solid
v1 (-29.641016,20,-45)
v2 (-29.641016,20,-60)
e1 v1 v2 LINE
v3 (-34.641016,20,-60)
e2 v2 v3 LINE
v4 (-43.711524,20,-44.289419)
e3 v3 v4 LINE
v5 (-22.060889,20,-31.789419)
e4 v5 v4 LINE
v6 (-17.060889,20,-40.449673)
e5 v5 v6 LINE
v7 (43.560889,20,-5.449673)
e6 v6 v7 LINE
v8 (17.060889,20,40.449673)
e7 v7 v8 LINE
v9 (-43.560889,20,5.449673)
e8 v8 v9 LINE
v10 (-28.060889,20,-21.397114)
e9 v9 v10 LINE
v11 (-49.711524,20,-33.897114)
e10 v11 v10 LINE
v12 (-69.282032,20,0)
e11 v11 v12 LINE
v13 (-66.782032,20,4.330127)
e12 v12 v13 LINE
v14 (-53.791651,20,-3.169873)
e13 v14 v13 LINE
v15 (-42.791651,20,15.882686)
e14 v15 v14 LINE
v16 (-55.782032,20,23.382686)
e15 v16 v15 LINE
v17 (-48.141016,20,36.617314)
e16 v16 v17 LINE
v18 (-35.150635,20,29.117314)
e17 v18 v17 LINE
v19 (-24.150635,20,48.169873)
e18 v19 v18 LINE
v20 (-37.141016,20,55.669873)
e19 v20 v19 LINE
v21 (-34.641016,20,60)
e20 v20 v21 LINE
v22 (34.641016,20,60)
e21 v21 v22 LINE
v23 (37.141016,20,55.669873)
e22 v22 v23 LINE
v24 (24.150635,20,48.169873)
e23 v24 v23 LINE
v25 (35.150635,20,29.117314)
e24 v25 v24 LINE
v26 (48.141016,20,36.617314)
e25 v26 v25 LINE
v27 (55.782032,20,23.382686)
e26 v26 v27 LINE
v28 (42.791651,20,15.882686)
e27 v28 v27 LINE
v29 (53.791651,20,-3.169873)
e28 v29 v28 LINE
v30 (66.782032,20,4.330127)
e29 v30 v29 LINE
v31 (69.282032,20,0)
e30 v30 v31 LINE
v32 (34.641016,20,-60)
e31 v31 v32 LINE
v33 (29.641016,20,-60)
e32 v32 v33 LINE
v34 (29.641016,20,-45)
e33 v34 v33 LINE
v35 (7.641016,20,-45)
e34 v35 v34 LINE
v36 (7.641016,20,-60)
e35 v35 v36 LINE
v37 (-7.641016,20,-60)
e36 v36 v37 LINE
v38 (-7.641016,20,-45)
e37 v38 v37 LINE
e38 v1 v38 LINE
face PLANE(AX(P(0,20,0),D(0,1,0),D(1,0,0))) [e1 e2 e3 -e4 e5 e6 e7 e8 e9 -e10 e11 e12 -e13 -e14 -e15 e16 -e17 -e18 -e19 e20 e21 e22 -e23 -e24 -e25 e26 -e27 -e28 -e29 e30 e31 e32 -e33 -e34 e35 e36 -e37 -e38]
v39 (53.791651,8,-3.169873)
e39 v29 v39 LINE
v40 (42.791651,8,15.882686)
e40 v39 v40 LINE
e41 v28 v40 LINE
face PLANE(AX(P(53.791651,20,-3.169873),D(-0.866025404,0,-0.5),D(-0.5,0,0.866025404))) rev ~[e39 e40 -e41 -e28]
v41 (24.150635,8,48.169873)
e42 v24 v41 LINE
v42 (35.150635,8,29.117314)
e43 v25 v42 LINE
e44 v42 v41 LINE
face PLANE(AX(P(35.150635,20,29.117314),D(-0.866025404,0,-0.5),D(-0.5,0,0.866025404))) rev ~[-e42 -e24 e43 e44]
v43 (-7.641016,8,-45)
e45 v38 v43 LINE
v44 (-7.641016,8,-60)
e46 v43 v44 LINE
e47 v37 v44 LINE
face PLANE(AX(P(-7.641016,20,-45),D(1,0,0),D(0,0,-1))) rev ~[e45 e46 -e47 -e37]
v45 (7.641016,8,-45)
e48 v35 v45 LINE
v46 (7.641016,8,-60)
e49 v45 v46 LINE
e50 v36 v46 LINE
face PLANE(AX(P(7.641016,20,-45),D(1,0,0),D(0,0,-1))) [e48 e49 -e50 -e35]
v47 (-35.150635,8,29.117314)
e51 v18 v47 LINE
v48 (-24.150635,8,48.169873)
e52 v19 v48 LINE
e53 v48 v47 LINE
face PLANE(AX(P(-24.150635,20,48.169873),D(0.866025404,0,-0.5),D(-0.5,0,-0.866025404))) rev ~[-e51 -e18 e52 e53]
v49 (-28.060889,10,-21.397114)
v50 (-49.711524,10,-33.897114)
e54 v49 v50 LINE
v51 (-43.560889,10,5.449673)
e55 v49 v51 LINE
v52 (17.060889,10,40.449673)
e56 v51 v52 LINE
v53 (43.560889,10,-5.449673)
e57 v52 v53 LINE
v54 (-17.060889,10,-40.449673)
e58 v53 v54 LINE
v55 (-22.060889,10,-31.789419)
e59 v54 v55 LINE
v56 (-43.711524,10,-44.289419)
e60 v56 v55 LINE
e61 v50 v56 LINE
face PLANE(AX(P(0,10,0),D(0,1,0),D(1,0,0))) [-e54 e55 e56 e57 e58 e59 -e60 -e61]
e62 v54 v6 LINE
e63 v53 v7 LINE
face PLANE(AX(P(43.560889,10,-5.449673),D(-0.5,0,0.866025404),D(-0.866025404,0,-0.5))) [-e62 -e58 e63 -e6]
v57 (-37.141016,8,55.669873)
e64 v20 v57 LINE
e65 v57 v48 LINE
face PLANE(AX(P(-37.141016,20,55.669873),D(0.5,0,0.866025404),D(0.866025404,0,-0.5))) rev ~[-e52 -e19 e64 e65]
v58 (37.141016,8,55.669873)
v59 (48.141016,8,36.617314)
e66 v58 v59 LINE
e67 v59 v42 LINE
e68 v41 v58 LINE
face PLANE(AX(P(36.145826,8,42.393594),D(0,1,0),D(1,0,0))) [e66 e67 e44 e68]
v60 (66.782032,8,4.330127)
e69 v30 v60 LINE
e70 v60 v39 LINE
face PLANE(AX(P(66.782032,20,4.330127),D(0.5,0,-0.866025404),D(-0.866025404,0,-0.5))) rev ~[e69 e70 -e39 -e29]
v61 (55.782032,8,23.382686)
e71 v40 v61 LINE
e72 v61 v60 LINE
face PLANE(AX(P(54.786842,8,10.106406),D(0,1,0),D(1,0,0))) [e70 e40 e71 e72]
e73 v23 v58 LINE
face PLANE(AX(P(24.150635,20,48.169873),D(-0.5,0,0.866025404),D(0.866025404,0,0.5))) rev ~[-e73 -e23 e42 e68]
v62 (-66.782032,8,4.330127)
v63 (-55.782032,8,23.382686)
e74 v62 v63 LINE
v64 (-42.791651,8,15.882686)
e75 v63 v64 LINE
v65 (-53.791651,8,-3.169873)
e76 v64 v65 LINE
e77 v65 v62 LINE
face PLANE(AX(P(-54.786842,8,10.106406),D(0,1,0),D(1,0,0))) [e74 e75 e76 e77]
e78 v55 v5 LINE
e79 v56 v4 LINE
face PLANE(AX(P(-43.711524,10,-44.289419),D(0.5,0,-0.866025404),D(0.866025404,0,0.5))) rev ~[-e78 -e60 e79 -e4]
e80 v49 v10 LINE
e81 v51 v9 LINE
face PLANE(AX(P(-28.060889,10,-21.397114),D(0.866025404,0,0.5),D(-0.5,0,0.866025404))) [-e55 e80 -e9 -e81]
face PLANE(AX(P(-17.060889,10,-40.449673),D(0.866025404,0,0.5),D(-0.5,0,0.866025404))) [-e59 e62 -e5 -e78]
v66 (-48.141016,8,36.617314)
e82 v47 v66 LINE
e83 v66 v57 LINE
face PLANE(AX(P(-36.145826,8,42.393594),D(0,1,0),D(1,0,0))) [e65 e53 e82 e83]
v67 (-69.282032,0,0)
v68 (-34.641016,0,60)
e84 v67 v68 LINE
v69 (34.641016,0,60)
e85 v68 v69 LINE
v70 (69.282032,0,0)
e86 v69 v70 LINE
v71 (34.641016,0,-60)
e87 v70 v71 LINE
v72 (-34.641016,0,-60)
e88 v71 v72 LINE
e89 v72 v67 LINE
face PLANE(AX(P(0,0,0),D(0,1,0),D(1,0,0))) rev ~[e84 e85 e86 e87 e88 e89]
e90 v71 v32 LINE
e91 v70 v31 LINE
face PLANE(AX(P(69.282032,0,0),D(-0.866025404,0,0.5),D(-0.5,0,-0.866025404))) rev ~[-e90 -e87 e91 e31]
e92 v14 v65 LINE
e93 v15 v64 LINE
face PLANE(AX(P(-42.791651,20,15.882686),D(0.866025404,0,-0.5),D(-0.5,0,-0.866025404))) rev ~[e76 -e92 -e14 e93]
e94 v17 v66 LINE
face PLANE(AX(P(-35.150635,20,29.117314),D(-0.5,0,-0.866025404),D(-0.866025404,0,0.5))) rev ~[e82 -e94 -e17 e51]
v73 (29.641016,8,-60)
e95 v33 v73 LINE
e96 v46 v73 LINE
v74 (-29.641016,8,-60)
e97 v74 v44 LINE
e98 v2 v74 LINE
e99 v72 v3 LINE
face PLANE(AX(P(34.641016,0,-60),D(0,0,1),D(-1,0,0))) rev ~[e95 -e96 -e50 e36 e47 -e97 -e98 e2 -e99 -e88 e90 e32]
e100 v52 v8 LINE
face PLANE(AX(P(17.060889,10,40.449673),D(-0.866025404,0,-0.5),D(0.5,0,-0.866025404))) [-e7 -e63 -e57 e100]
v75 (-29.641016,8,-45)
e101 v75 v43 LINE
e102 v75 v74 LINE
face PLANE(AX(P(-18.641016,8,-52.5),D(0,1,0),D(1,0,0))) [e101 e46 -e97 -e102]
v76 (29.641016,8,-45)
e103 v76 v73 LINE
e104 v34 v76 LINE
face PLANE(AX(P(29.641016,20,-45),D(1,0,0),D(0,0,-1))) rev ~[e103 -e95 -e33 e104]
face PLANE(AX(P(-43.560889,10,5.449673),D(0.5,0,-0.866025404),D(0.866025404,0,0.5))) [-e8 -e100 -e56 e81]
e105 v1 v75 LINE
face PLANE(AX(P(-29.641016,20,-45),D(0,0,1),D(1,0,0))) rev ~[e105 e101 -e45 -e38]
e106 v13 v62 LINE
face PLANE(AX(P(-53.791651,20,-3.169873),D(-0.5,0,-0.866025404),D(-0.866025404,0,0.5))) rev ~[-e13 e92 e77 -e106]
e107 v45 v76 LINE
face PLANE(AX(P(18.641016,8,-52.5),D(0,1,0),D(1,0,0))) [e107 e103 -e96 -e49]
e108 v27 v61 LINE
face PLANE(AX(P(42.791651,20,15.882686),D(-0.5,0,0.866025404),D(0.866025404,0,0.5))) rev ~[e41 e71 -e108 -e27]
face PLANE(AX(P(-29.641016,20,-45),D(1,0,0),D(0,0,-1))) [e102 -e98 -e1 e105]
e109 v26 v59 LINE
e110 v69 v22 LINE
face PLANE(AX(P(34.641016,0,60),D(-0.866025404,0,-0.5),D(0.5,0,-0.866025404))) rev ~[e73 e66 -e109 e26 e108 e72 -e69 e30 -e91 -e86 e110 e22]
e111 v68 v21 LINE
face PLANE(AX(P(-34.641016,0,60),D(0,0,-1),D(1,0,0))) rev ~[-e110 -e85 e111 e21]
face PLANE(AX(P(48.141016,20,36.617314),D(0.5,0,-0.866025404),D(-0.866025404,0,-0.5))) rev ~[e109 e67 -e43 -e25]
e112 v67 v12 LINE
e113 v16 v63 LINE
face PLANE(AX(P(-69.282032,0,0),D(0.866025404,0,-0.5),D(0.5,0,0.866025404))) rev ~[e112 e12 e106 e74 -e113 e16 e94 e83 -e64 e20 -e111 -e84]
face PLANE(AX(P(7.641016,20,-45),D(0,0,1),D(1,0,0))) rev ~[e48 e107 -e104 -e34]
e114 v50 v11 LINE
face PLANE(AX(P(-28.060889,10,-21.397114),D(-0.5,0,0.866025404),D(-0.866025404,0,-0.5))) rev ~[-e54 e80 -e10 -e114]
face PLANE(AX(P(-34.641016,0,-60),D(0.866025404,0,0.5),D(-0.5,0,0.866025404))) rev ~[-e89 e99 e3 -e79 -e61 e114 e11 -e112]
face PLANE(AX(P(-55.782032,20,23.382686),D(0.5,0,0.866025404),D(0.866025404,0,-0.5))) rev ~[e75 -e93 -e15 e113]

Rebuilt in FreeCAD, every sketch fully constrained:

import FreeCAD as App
import Part
import Sketcher

V = App.Vector
Q = App.Units.Quantity


def add_polygon(sketch, points):
    """Adds a closed chain of lines whose ends are joined by coincident constraints."""
    first, n = sketch.GeometryCount, len(points)
    for a, b in zip(points, points[1:] + points[:1]):
        sketch.addGeometry(Part.LineSegment(App.Vector(*a, 0), App.Vector(*b, 0)), False)
    for i in range(n):
        sketch.addConstraint(Sketcher.Constraint("Coincident", first + i, 2, first + (i + 1) % n, 1))

doc = App.newDocument("Part")
body = doc.addObject("PartDesign::Body", "Body")

# Sketch on XZ plane
sketch1 = doc.addObject("Sketcher::SketchObject", "Sketch")
body.addObject(sketch1)
sketch1.AttachmentSupport = (doc.XZ_Plane, [""])
sketch1.MapMode = "FlatFace"
add_polygon(sketch1, [(69, 0), (35, -60), (-35, -60), (-69, 0), (-35, 60), (35, 60)])  # lines 0-5
sketch1.addConstraint([
    Sketcher.Constraint("Horizontal", 1),
    Sketcher.Constraint("Horizontal", 4),
    Sketcher.Constraint("Symmetric", 0, 2, 3, 2, -1, 1),
    Sketcher.Constraint("Symmetric", 2, 2, 5, 2, -1, 1),
    Sketcher.Constraint("PointOnObject", 2, 2, -1),
    Sketcher.Constraint("Parallel", 2, 5),
    Sketcher.Constraint("Vertical", 1, 2, 3, 2),
    Sketcher.Constraint("Angle", 0, Q("-120 deg")),
    Sketcher.Constraint("DistanceY", 0, 2, -1, 1, Q("60 mm")),
    Sketcher.Constraint("DistanceX", 1, 2, 1, 1, Q("69.282032 mm")),
])
pad1 = doc.addObject("PartDesign::Pad", "Pad")
body.addObject(pad1)
pad1.Profile = sketch1
pad1.Length = 20
pad1.Reversed = True

# Sketch on XZ plane
sketch2 = doc.addObject("Sketcher::SketchObject", "Sketch001")
body.addObject(sketch2)
sketch2.AttachmentSupport = (doc.XZ_Plane, [""])
sketch2.MapMode = "FlatFace"
sketch2.AttachmentOffset = App.Placement(V(0, 0, -20), App.Rotation())
add_polygon(sketch2, [(-30, -60), (-30, -45), (-8, -45), (-8, -60)])  # lines 0-3
add_polygon(sketch2, [(8, -60), (8, -45), (30, -45), (30, -60)])  # lines 4-7
add_polygon(sketch2, [(67, 4), (54, -3), (43, 16), (56, 23)])  # lines 8-11
add_polygon(sketch2, [(48, 37), (35, 29), (24, 48), (37, 56)])  # lines 12-15
add_polygon(sketch2, [(-37, 56), (-24, 48), (-35, 29), (-48, 37)])  # lines 16-19
add_polygon(sketch2, [(-56, 23), (-43, 16), (-54, -3), (-67, 4)])  # lines 20-23
sketch2.addConstraint([
    Sketcher.Constraint("Vertical", 0),
    Sketcher.Constraint("Horizontal", 1),
    Sketcher.Constraint("Vertical", 2),
    Sketcher.Constraint("Horizontal", 3),
    Sketcher.Constraint("Vertical", 4),
    Sketcher.Constraint("Horizontal", 5),
    Sketcher.Constraint("Vertical", 6),
    Sketcher.Constraint("Horizontal", 7),
    Sketcher.Constraint("Symmetric", 1, 2, 4, 2, -2),
    Sketcher.Constraint("Symmetric", 3, 2, 6, 2, -2),
    Sketcher.Constraint("Symmetric", 13, 2, 16, 2, -2),
    Sketcher.Constraint("Symmetric", 12, 2, 17, 2, -2),
    Sketcher.Constraint("Symmetric", 15, 2, 18, 2, -2),
    Sketcher.Constraint("Symmetric", 14, 2, 19, 2, -2),
    Sketcher.Constraint("Symmetric", 9, 2, 20, 2, -2),
    Sketcher.Constraint("Symmetric", 8, 2, 21, 2, -2),
    Sketcher.Constraint("Symmetric", 11, 2, 22, 2, -2),
    Sketcher.Constraint("Symmetric", 10, 2, 23, 2, -2),
    Sketcher.Constraint("Perpendicular", 8, 9),
    Sketcher.Constraint("Perpendicular", 9, 10),
    Sketcher.Constraint("Perpendicular", 10, 11),
    Sketcher.Constraint("Perpendicular", 11, 12),
    Sketcher.Constraint("Perpendicular", 12, 13),
    Sketcher.Constraint("Perpendicular", 13, 14),
    Sketcher.Constraint("Perpendicular", 14, 15),
    Sketcher.Constraint("Equal", 10, 12),
    Sketcher.Constraint("Equal", 11, 13),
    Sketcher.Constraint("DistanceX", 1, 1, 1, 2, Q("22 mm")),
    Sketcher.Constraint("DistanceY", 0, 1, 0, 2, Q("15 mm")),
    Sketcher.Constraint("Angle", 8, Q("-150 deg")),
    Sketcher.Constraint("Distance", 8, Q("15 mm")),
    Sketcher.Constraint("Distance", 9, Q("22 mm")),
    Sketcher.Constraint("DistanceY", 0, 2, -1, 1, Q("45 mm")),
    Sketcher.Constraint("DistanceX", 18, 2, 0, 2, Q("18.5 mm")),
    Sketcher.Constraint("DistanceX", -1, 1, 8, 2, Q("53.791651 mm")),
    Sketcher.Constraint("DistanceY", 9, 2, 12, 2, Q("13.234628 mm")),
    Sketcher.Constraint("DistanceX", 16, 2, 13, 2, Q("48.30127 mm")),
    Sketcher.Constraint("DistanceY", 8, 2, -1, 1, Q("3.169873 mm")),
])
pocket1 = doc.addObject("PartDesign::Pocket", "Pocket")
body.addObject(pocket1)
pocket1.Profile = sketch2
pocket1.Length = 12
pocket1.Reversed = True

# Sketch on XZ plane
sketch3 = doc.addObject("Sketcher::SketchObject", "Sketch002")
body.addObject(sketch3)
sketch3.AttachmentSupport = (doc.XZ_Plane, [""])
sketch3.MapMode = "FlatFace"
sketch3.AttachmentOffset = App.Placement(V(0, 0, -20), App.Rotation())
add_polygon(sketch3, [(-44, 5), (17, 40), (44, -5), (-17, -40), (-22, -32), (-44, -44), (-50, -34), (-28, -21)])  # lines 0-7
sketch3.addConstraint([
    Sketcher.Constraint("Symmetric", 0, 2, 2, 2, -1, 1),
    Sketcher.Constraint("Symmetric", 1, 2, 7, 2, -1, 1),
    Sketcher.Constraint("Perpendicular", 0, 1),
    Sketcher.Constraint("Perpendicular", 2, 3),
    Sketcher.Constraint("Perpendicular", 3, 4),
    Sketcher.Constraint("Perpendicular", 4, 5),
    Sketcher.Constraint("Perpendicular", 5, 6),
    Sketcher.Constraint("Perpendicular", 6, 7),
    Sketcher.Constraint("Angle", 0, Q("30 deg")),
    Sketcher.Constraint("Distance", 0, Q("70 mm")),
    Sketcher.Constraint("Distance", 1, Q("53 mm")),
    Sketcher.Constraint("Distance", 3, Q("10 mm")),
    Sketcher.Constraint("Distance", 4, Q("25 mm")),
    Sketcher.Constraint("Distance", 5, Q("12 mm")),
])
pocket2 = doc.addObject("PartDesign::Pocket", "Pocket001")
body.addObject(pocket2)
pocket2.Profile = sketch3
pocket2.Type = "TwoLengths"
pocket2.Length = 94.808315
pocket2.Length2 = 10

doc.recompute()
